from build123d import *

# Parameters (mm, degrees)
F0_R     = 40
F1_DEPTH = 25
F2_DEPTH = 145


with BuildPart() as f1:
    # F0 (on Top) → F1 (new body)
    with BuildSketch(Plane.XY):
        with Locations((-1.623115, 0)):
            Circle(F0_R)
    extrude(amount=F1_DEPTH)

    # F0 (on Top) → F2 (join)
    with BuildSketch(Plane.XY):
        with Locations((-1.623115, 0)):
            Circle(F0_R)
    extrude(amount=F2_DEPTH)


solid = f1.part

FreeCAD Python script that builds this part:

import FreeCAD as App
import Part
import Sketcher

doc = App.newDocument("Part")
body = doc.addObject("PartDesign::Body", "Body")

# Sketch on XY plane
sketch1 = doc.addObject("Sketcher::SketchObject", "Sketch")
body.addObject(sketch1)
sketch1.AttachmentSupport = (doc.XY_Plane, [""])
sketch1.MapMode = "FlatFace"
sketch1.addGeometry(Part.Circle(App.Vector(-2, 0, 0), App.Vector(0, 0, 1), 40), False)
sketch1.addConstraint([
    Sketcher.Constraint("PointOnObject", 0, 3, -1),
    Sketcher.Constraint("Diameter", 0, 80.0),
    Sketcher.Constraint("DistanceX", 0, 3, -1, 1, 1.623115),
])
pad1 = doc.addObject("PartDesign::Pad", "Pad")
body.addObject(pad1)
pad1.Profile = sketch1
pad1.Length = 25

# Sketch on XY plane
sketch2 = doc.addObject("Sketcher::SketchObject", "Sketch001")
body.addObject(sketch2)
sketch2.AttachmentSupport = (doc.XY_Plane, [""])
sketch2.MapMode = "FlatFace"
sketch2.addGeometry(Part.Circle(App.Vector(-2, 0, 0), App.Vector(0, 0, 1), 40), False)
sketch2.addConstraint([
    Sketcher.Constraint("PointOnObject", 0, 3, -1),
    Sketcher.Constraint("Diameter", 0, 80.0),
    Sketcher.Constraint("DistanceX", 0, 3, -1, 1, 1.623115),
])
pad2 = doc.addObject("PartDesign::Pad", "Pad001")
body.addObject(pad2)
pad2.Profile = sketch2
pad2.Length = 145

doc.recompute()
